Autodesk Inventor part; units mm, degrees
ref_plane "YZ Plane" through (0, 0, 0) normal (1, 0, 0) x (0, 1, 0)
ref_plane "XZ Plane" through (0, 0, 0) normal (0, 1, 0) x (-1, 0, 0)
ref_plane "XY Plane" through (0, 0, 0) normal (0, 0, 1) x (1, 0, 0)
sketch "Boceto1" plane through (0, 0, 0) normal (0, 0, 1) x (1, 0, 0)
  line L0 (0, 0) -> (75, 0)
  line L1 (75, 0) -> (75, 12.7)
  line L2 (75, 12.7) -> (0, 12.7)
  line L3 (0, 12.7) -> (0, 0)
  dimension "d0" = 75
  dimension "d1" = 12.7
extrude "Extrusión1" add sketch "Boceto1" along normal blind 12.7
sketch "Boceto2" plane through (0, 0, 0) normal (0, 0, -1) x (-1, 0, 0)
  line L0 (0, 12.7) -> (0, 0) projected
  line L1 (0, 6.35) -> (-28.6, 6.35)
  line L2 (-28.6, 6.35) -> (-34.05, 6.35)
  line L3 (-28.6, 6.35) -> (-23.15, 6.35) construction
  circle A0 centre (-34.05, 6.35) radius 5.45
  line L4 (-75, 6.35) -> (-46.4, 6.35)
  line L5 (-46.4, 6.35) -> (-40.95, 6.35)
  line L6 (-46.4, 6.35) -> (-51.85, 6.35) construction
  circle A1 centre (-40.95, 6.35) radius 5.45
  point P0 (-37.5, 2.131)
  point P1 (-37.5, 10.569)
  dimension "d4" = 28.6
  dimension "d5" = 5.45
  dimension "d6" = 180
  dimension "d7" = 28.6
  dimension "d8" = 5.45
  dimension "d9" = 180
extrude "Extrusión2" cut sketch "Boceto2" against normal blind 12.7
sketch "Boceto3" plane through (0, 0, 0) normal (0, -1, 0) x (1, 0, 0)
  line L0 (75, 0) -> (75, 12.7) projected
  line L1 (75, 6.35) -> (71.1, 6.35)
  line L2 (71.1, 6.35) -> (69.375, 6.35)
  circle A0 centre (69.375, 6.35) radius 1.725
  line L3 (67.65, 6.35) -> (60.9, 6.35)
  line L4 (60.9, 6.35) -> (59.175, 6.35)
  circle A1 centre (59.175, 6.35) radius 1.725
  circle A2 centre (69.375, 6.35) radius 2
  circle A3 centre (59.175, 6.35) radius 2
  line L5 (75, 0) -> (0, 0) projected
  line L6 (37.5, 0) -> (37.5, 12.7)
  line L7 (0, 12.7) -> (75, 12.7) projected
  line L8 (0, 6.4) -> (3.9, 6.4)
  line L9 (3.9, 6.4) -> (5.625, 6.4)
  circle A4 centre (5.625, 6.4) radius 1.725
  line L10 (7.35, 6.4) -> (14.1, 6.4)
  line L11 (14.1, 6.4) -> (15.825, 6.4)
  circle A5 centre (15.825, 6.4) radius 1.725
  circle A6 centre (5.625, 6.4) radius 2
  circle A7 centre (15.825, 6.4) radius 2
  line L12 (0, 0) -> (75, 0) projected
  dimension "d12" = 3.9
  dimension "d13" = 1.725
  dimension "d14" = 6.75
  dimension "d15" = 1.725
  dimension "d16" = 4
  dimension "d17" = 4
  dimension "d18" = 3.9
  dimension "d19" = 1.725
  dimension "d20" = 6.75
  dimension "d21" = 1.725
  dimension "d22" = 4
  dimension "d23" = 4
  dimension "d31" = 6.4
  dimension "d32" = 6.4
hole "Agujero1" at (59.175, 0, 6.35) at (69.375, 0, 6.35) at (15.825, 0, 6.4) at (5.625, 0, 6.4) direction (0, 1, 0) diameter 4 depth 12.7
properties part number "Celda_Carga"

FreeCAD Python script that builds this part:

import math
import FreeCAD as App
import Part
import Sketcher
from FreeCAD import Vector

doc = App.newDocument("Part")
body = doc.addObject("PartDesign::Body", "Body")

# Sketch on XY plane
sketch1 = body.newObject("Sketcher::SketchObject", "Sketch")
sketch1.AttachmentSupport = (doc.getObject("XY_Plane"), [""])
sketch1.MapMode = "FlatFace"
sketch1.addGeometry([
    Part.LineSegment(Vector(0, 13, 0), Vector(0, 0, 0)),
    Part.LineSegment(Vector(0, 0, 0), Vector(75, 0, 0)),
    Part.LineSegment(Vector(75, 0, 0), Vector(75, 13, 0)),
    Part.LineSegment(Vector(75, 13, 0), Vector(0, 13, 0)),
], False)
sketch1.addConstraint([
    Sketcher.Constraint("Coincident", 0, 2, 1, 1),
    Sketcher.Constraint("Coincident", 1, 2, 2, 1),
    Sketcher.Constraint("Coincident", 2, 2, 3, 1),
    Sketcher.Constraint("Coincident", 3, 2, 0, 1),
    Sketcher.Constraint("Vertical", 0),
    Sketcher.Constraint("Horizontal", 1),
    Sketcher.Constraint("Vertical", 2),
    Sketcher.Constraint("Horizontal", 3),
    Sketcher.Constraint("Coincident", 0, 2, -1, 1),
    Sketcher.Constraint("DistanceX", 1, 1, 1, 2, 75.0),
    Sketcher.Constraint("DistanceY", 0, 2, 0, 1, 12.7),
])
pad1 = body.newObject("PartDesign::Pad", "Pad")
pad1.Profile = sketch1
pad1.Length = 12.7

# Sketch on XY plane
sketch2 = body.newObject("Sketcher::SketchObject", "Sketch001")
sketch2.AttachmentSupport = (doc.getObject("XY_Plane"), [""])
sketch2.MapMode = "FlatFace"
sketch2.addGeometry([
    Part.ArcOfCircle(Part.Circle(Vector(34, 6, 0), Vector(0, 0, 1), 5), math.radians(51), math.radians(309)),
    Part.ArcOfCircle(Part.Circle(Vector(41, 6, 0), Vector(0, 0, 1), 5), math.radians(-129), math.radians(129)),
], False)
sketch2.addConstraint([
    Sketcher.Constraint("Coincident", 0, 1, 1, 2),
    Sketcher.Constraint("Coincident", 1, 1, 0, 2),
    Sketcher.Constraint("Equal", 0, 1),
    Sketcher.Constraint("Horizontal", 0, 3, 1, 3),
    Sketcher.Constraint("Radius", 0, 5.45),
    Sketcher.Constraint("DistanceX", -1, 1, 0, 1, 37.5),
    Sketcher.Constraint("DistanceX", 0, 3, 1, 3, 6.9),
    Sketcher.Constraint("DistanceY", -1, 1, 0, 3, 6.35),
])
pocket1 = body.newObject("PartDesign::Pocket", "Pocket")
pocket1.Profile = sketch2
pocket1.Length = 12.7
pocket1.Reversed = True

# Sketch on XZ plane
sketch3 = body.newObject("Sketcher::SketchObject", "Sketch002")
sketch3.AttachmentSupport = (doc.getObject("XZ_Plane"), [""])
sketch3.MapMode = "FlatFace"
sketch3.addGeometry([
    Part.Circle(Vector(59.2, 6.3, 0), Vector(0, 0, 1), 2),
    Part.Circle(Vector(69.4, 6.3, 0), Vector(0, 0, 1), 2),
    Part.Circle(Vector(15.8, 6.4, 0), Vector(0, 0, 1), 2),
    Part.Circle(Vector(5.6, 6.4, 0), Vector(0, 0, 1), 2),
], False)
sketch3.addConstraint([
    Sketcher.Constraint("Equal", 0, 1),
    Sketcher.Constraint("Equal", 1, 2),
    Sketcher.Constraint("Equal", 2, 3),
    Sketcher.Constraint("Horizontal", 0, 3, 1, 3),
    Sketcher.Constraint("Horizontal", 2, 3, 3, 3),
    Sketcher.Constraint("Diameter", 0, 4.0),
    Sketcher.Constraint("DistanceY", -1, 1, 2, 3, 6.4),
    Sketcher.Constraint("DistanceX", 0, 3, 1, 3, 10.2),
    Sketcher.Constraint("DistanceX", 3, 3, 2, 3, 10.2),
    Sketcher.Constraint("DistanceY", -1, 1, 0, 3, 6.35),
    Sketcher.Constraint("DistanceX", 2, 3, 0, 3, 43.35),
    Sketcher.Constraint("DistanceX", -1, 1, 0, 3, 59.175),
])
doc.recompute()
hole = body.newObject("PartDesign::Hole", "Hole")
hole.Profile = sketch3
hole.ThreadType = "None"
hole.Diameter = 4
hole.DepthType = "Dimension"
hole.Depth = 12.7
hole.DrillPoint = "Flat"

doc.recompute()
